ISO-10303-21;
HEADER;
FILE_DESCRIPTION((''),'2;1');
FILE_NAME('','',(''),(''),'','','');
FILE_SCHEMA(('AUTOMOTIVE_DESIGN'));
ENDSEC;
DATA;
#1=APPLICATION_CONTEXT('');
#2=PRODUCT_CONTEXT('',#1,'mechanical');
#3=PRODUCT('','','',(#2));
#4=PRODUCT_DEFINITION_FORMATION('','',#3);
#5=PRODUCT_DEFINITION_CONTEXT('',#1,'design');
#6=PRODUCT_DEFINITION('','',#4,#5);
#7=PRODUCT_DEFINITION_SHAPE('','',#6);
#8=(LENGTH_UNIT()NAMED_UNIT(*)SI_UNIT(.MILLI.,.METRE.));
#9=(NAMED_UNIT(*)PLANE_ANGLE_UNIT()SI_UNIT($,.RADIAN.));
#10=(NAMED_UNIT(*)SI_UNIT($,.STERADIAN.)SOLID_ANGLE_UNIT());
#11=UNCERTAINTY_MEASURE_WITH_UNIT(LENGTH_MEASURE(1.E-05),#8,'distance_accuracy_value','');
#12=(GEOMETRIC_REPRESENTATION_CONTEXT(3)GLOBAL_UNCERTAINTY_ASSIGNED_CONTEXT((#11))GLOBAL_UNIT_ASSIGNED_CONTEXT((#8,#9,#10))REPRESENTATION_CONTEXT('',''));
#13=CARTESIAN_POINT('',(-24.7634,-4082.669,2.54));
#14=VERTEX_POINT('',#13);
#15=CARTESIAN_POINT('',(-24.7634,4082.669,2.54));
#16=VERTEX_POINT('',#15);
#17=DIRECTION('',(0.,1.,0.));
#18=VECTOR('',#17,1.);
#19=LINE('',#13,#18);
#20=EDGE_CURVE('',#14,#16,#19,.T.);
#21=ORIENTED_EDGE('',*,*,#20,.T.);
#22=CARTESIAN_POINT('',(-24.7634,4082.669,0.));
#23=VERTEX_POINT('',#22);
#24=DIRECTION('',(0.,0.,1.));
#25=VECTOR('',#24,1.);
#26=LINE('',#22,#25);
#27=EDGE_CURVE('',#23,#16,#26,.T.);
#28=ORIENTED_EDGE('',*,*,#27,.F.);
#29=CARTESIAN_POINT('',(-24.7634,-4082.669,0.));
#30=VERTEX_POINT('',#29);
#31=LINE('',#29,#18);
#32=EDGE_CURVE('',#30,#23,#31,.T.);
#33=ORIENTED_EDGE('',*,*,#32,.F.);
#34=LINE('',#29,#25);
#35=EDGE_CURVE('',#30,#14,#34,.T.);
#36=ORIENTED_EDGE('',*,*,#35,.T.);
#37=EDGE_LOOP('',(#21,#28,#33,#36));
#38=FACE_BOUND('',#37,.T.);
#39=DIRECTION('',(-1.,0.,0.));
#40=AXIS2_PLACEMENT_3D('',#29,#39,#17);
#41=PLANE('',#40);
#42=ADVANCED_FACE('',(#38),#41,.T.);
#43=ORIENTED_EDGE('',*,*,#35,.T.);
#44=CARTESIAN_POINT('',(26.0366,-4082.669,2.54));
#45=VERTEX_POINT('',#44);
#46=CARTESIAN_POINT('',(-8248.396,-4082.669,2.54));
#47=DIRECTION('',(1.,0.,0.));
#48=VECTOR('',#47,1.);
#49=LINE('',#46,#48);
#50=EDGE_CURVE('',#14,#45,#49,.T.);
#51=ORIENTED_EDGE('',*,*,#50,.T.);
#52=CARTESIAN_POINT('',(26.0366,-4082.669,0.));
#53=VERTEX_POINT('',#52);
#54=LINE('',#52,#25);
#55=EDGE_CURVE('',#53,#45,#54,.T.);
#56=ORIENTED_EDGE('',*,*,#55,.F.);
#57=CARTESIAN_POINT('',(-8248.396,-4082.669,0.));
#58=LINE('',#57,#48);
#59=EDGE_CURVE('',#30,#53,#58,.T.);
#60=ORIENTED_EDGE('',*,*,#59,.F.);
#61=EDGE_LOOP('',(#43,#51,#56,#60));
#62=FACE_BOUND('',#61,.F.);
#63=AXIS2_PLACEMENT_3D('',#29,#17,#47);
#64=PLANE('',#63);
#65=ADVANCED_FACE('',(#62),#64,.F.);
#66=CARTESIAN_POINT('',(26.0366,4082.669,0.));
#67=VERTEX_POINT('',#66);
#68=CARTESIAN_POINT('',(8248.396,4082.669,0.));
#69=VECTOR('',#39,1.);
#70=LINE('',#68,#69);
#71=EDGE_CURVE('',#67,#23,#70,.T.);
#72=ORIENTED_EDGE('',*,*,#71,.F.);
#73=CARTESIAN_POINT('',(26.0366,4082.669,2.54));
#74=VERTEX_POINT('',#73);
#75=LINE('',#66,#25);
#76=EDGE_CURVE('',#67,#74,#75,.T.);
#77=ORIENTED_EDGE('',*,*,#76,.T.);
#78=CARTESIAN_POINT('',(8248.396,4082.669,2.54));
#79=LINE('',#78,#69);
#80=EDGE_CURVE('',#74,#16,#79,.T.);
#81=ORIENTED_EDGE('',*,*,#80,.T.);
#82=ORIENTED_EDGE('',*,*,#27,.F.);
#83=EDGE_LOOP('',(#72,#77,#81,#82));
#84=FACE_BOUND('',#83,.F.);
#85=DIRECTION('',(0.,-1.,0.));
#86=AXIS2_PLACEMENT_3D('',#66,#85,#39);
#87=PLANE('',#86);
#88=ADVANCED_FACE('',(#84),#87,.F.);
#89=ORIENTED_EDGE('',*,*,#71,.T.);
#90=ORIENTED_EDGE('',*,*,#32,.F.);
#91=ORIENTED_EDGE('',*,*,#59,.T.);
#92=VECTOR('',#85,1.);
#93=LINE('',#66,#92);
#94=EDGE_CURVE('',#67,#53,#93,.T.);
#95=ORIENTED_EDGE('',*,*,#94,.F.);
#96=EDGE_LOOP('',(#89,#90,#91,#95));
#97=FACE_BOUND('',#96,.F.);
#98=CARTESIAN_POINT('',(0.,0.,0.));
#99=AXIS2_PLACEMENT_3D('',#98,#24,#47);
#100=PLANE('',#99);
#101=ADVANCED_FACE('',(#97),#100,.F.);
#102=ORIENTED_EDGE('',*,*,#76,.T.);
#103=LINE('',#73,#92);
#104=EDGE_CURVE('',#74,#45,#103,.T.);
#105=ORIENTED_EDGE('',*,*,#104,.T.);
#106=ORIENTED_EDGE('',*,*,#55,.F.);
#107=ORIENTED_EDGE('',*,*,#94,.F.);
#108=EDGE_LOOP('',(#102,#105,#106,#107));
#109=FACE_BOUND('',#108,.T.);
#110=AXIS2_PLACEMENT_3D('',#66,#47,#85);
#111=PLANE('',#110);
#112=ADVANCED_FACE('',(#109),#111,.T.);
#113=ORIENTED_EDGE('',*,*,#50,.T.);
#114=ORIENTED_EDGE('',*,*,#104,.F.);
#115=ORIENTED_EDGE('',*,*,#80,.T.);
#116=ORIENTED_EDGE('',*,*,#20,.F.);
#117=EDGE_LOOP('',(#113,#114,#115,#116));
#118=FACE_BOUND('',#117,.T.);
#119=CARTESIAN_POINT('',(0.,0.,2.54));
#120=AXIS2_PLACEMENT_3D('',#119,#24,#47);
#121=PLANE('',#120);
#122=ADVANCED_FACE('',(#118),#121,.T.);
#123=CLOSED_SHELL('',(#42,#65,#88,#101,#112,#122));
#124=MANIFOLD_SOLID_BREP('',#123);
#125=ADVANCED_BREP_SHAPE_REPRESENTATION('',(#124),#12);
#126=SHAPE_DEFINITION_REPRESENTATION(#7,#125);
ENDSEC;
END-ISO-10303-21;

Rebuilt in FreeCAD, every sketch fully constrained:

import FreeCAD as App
import Part
import Sketcher
Q = App.Units.Quantity


def add_polygon(sketch, points):
    """Adds a closed chain of lines whose ends are joined by coincident constraints."""
    first, n = sketch.GeometryCount, len(points)
    for a, b in zip(points, points[1:] + points[:1]):
        sketch.addGeometry(Part.LineSegment(App.Vector(*a, 0), App.Vector(*b, 0)), False)
    for i in range(n):
        sketch.addConstraint(Sketcher.Constraint("Coincident", first + i, 2, first + (i + 1) % n, 1))

doc = App.newDocument("Part")
body = doc.addObject("PartDesign::Body", "Body")

# Sketch on XY plane
sketch1 = doc.addObject("Sketcher::SketchObject", "Sketch")
body.addObject(sketch1)
sketch1.AttachmentSupport = (doc.XY_Plane, [""])
sketch1.MapMode = "FlatFace"
add_polygon(sketch1, [(-25, 4083), (-25, -4083), (26, -4083), (26, 4083)])  # lines 0-3
sketch1.addConstraint([
    Sketcher.Constraint("Vertical", 0),
    Sketcher.Constraint("Horizontal", 1),
    Sketcher.Constraint("Vertical", 2),
    Sketcher.Constraint("Horizontal", 3),
    Sketcher.Constraint("DistanceX", 1, 1, 1, 2, Q("2 in")),
    Sketcher.Constraint("DistanceY", 0, 2, 0, 1, Q("321.47 in")),
    Sketcher.Constraint("DistanceY", 0, 2, -1, 1, Q("160.735 in")),
    Sketcher.Constraint("DistanceX", 0, 2, -1, 1, Q("24.7634 mm")),
])
pad1 = doc.addObject("PartDesign::Pad", "Pad")
body.addObject(pad1)
pad1.Profile = sketch1
pad1.Length = Q("0.1 in")

doc.recompute()
